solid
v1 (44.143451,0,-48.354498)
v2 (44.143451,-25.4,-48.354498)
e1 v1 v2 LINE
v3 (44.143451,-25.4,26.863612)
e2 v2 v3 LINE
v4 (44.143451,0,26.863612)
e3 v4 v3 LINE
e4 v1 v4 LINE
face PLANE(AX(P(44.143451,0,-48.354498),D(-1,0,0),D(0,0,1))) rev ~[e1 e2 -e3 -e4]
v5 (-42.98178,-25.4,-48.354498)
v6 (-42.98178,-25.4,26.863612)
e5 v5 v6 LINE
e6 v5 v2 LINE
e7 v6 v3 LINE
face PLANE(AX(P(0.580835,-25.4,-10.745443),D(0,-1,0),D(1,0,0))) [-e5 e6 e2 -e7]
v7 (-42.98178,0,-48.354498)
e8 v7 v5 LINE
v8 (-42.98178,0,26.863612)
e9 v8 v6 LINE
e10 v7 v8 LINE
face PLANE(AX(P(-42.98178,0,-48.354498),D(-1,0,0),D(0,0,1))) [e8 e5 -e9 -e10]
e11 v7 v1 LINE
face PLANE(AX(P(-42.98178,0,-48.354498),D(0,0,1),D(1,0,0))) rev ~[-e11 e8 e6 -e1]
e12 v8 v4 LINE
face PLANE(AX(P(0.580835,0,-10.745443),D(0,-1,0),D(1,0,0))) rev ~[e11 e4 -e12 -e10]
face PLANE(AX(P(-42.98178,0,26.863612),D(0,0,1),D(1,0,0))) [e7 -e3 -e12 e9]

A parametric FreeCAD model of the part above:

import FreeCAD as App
import Part
import Sketcher

V = App.Vector
Q = App.Units.Quantity


def add_polygon(sketch, points):
    """Adds a closed chain of lines whose ends are joined by coincident constraints."""
    first, n = sketch.GeometryCount, len(points)
    for a, b in zip(points, points[1:] + points[:1]):
        sketch.addGeometry(Part.LineSegment(App.Vector(*a, 0), App.Vector(*b, 0)), False)
    for i in range(n):
        sketch.addConstraint(Sketcher.Constraint("Coincident", first + i, 2, first + (i + 1) % n, 1))

doc = App.newDocument("Part")
body = doc.addObject("PartDesign::Body", "Body")

# Sketch on XZ plane
sketch1 = body.newObject("Sketcher::SketchObject", "Sketch")
sketch1.AttachmentSupport = (doc.getObject("XZ_Plane"), [""])
sketch1.MapMode = "FlatFace"
add_polygon(sketch1, [(-28.460909, 16.699001), (-28.460909, -33.252795), (28.460907, -33.252795), (28.460907, 16.699001)])  # lines 0-3
sketch1.addConstraint([
    Sketcher.Constraint("Vertical", 0),
    Sketcher.Constraint("Horizontal", 1),
    Sketcher.Constraint("Vertical", 2),
    Sketcher.Constraint("Horizontal", 3),
    Sketcher.Constraint("DistanceY", -1, 1, 2, 2, 16.699001),
    Sketcher.Constraint("DistanceX", 1, 1, 1, 2, 56.921816),
    Sketcher.Constraint("DistanceY", 0, 2, 0, 1, 49.951795),
    Sketcher.Constraint("DistanceX", 0, 2, -1, 1, 28.460909),
])
pad1 = body.newObject("PartDesign::Pad", "Pad")
pad1.Profile = sketch1
pad1.Length = Q("1 in")

# Sketch on XZ plane
sketch2 = body.newObject("Sketcher::SketchObject", "Sketch001")
sketch2.AttachmentSupport = (doc.getObject("XZ_Plane"), [""])
sketch2.MapMode = "FlatFace"
add_polygon(sketch2, [(-42.98178, 26.863612), (-42.98178, -48.354498), (44.143451, -48.354498), (44.143451, 26.863612)])  # lines 0-3
sketch2.addConstraint([
    Sketcher.Constraint("Vertical", 0),
    Sketcher.Constraint("Horizontal", 1),
    Sketcher.Constraint("Vertical", 2),
    Sketcher.Constraint("Horizontal", 3),
    Sketcher.Constraint("DistanceX", 1, 1, 1, 2, 87.125231),
    Sketcher.Constraint("DistanceY", 0, 2, 0, 1, 75.218111),
    Sketcher.Constraint("DistanceY", 0, 2, -1, 1, 48.354498),
    Sketcher.Constraint("DistanceX", 0, 2, -1, 1, 42.98178),
])
pad2 = body.newObject("PartDesign::Pad", "Pad001")
pad2.Profile = sketch2
pad2.Length = Q("1 in")

doc.recompute()
